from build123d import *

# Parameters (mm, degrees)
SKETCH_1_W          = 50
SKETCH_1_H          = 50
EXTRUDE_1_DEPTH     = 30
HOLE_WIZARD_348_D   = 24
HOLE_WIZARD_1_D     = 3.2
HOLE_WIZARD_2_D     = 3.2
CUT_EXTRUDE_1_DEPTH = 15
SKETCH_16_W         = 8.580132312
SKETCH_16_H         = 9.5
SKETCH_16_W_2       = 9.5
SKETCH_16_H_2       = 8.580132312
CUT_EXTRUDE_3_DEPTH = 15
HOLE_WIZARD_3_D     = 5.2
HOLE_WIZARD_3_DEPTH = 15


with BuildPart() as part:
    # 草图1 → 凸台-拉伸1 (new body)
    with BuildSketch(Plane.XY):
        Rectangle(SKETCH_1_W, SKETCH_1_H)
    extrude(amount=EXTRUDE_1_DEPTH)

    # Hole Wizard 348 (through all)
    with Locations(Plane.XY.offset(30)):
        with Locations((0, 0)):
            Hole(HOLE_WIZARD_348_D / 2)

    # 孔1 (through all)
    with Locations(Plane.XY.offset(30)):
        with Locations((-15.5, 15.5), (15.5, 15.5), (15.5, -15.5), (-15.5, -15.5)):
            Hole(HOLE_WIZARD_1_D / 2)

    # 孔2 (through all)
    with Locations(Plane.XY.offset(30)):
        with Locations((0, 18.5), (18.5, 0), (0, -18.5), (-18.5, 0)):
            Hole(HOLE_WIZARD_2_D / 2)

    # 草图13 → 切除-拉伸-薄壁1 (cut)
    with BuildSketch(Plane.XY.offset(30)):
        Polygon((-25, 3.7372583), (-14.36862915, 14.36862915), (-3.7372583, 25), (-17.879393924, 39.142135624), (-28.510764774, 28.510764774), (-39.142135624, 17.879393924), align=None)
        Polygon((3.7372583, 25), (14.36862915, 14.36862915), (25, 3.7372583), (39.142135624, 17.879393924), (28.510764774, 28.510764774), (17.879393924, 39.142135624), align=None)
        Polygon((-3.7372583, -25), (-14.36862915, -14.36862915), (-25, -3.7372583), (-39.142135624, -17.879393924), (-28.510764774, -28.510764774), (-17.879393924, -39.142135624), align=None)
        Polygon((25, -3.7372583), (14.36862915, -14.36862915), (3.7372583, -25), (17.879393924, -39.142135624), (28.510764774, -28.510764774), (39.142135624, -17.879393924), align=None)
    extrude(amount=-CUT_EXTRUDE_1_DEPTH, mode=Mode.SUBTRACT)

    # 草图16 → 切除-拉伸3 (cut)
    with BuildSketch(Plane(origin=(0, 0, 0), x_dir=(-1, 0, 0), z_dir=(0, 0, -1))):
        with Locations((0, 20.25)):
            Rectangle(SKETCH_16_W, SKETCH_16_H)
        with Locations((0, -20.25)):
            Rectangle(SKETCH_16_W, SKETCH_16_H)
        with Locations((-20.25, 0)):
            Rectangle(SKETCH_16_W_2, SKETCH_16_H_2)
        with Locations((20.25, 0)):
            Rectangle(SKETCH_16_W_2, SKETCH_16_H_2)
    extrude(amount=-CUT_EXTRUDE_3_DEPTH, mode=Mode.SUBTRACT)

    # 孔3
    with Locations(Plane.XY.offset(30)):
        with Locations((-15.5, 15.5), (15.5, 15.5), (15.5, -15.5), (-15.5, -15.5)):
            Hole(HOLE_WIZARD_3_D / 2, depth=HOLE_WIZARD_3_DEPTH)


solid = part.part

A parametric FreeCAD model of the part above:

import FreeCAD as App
import Part
import Sketcher


def add_polygon(sketch, points):
    """Adds a closed chain of lines whose ends are joined by coincident constraints."""
    first, n = sketch.GeometryCount, len(points)
    for a, b in zip(points, points[1:] + points[:1]):
        sketch.addGeometry(Part.LineSegment(App.Vector(*a, 0), App.Vector(*b, 0)), False)
    for i in range(n):
        sketch.addConstraint(Sketcher.Constraint("Coincident", first + i, 2, first + (i + 1) % n, 1))

doc = App.newDocument("Part")
body = doc.addObject("PartDesign::Body", "Body")

# Sketch on XY plane
sketch1 = body.newObject("Sketcher::SketchObject", "Sketch")
sketch1.AttachmentSupport = (doc.getObject("XY_Plane"), [""])
sketch1.MapMode = "FlatFace"
add_polygon(sketch1, [(-25, 25), (-25, -25), (25, -25), (25, 25)])  # lines 0-3
sketch1.addConstraint(Sketcher.Constraint("Vertical", 0))
sketch1.addConstraint(Sketcher.Constraint("Horizontal", 1))
sketch1.addConstraint(Sketcher.Constraint("Vertical", 2))
sketch1.addConstraint(Sketcher.Constraint("Horizontal", 3))
sketch1.addConstraint(Sketcher.Constraint("Symmetric", 0, 2, 2, 2, -1, 1))
sketch1.addConstraint(Sketcher.Constraint("Equal", 3, 0))
sketch1.addConstraint(Sketcher.Constraint("DistanceX", 1, 1, 1, 2, 50.0))
pad1 = body.newObject("PartDesign::Pad", "Pad")
pad1.Profile = sketch1
pad1.Length = 30

# Sketch on XY plane
sketch2 = body.newObject("Sketcher::SketchObject", "Sketch001")
sketch2.AttachmentSupport = (doc.getObject("XY_Plane"), [""])
sketch2.MapMode = "FlatFace"
sketch2.AttachmentOffset = App.Placement(App.Vector(0, 0, 30), App.Rotation())
sketch2.addGeometry(Part.Circle(App.Vector(0, 0, 0), App.Vector(0, 0, 1), 12), False)
sketch2.addConstraint(Sketcher.Constraint("Coincident", 0, 3, -1, 1))
sketch2.addConstraint(Sketcher.Constraint("Diameter", 0, 24.0))
doc.recompute()
hole = body.newObject("PartDesign::Hole", "Hole")
hole.Profile = sketch2
hole.ThreadType = "None"
hole.Diameter = 24
hole.DepthType = "ThroughAll"

# Sketch on XY plane
sketch3 = body.newObject("Sketcher::SketchObject", "Sketch002")
sketch3.AttachmentSupport = (doc.getObject("XY_Plane"), [""])
sketch3.MapMode = "FlatFace"
sketch3.AttachmentOffset = App.Placement(App.Vector(0, 0, 30), App.Rotation())
sketch3.addGeometry(Part.Circle(App.Vector(-15.5, 15.5, 0), App.Vector(0, 0, 1), 1.6), False)
sketch3.addGeometry(Part.Circle(App.Vector(15.5, 15.5, 0), App.Vector(0, 0, 1), 1.6), False)
sketch3.addGeometry(Part.Circle(App.Vector(15.5, -15.5, 0), App.Vector(0, 0, 1), 1.6), False)
sketch3.addGeometry(Part.Circle(App.Vector(-15.5, -15.5, 0), App.Vector(0, 0, 1), 1.6), False)
sketch3.addConstraint(Sketcher.Constraint("Equal", 0, 1))
sketch3.addConstraint(Sketcher.Constraint("Equal", 1, 2))
sketch3.addConstraint(Sketcher.Constraint("Equal", 2, 3))
sketch3.addConstraint(Sketcher.Constraint("Symmetric", 0, 3, 2, 3, -1, 1))
sketch3.addConstraint(Sketcher.Constraint("Symmetric", 1, 3, 3, 3, -1, 1))
sketch3.addConstraint(Sketcher.Constraint("Symmetric", 0, 3, 1, 3, -2))
sketch3.addConstraint(Sketcher.Constraint("Diameter", 0, 3.2))
sketch3.addConstraint(Sketcher.Constraint("DistanceX", 0, 3, 1, 3, 31.0))
sketch3.addConstraint(Sketcher.Constraint("DistanceY", 2, 3, 1, 3, 31.0))
doc.recompute()
hole2 = body.newObject("PartDesign::Hole", "Hole001")
hole2.Profile = sketch3
hole2.ThreadType = "None"
hole2.Diameter = 3.2
hole2.DepthType = "ThroughAll"

# Sketch on XY plane
sketch4 = body.newObject("Sketcher::SketchObject", "Sketch003")
sketch4.AttachmentSupport = (doc.getObject("XY_Plane"), [""])
sketch4.MapMode = "FlatFace"
sketch4.AttachmentOffset = App.Placement(App.Vector(0, 0, 30), App.Rotation())
sketch4.addGeometry(Part.Circle(App.Vector(0, 18.5, 0), App.Vector(0, 0, 1), 1.6), False)
sketch4.addGeometry(Part.Circle(App.Vector(18.5, 0, 0), App.Vector(0, 0, 1), 1.6), False)
sketch4.addGeometry(Part.Circle(App.Vector(0, -18.5, 0), App.Vector(0, 0, 1), 1.6), False)
sketch4.addGeometry(Part.Circle(App.Vector(-18.5, 0, 0), App.Vector(0, 0, 1), 1.6), False)
sketch4.addConstraint(Sketcher.Constraint("Equal", 0, 1))
sketch4.addConstraint(Sketcher.Constraint("Equal", 1, 2))
sketch4.addConstraint(Sketcher.Constraint("Equal", 2, 3))
sketch4.addConstraint(Sketcher.Constraint("Symmetric", 0, 3, 2, 3, -1, 1))
sketch4.addConstraint(Sketcher.Constraint("Symmetric", 1, 3, 3, 3, -1, 1))
sketch4.addConstraint(Sketcher.Constraint("PointOnObject", 0, 3, -2))
sketch4.addConstraint(Sketcher.Constraint("PointOnObject", 1, 3, -1))
sketch4.addConstraint(Sketcher.Constraint("Diameter", 0, 3.2))
sketch4.addConstraint(Sketcher.Constraint("DistanceY", 2, 3, 0, 3, 37.0))
sketch4.addConstraint(Sketcher.Constraint("DistanceX", 3, 3, 1, 3, 37.0))
doc.recompute()
hole3 = body.newObject("PartDesign::Hole", "Hole002")
hole3.Profile = sketch4
hole3.ThreadType = "None"
hole3.Diameter = 3.2
hole3.DepthType = "ThroughAll"

# Sketch on XY plane
sketch5 = body.newObject("Sketcher::SketchObject", "Sketch004")
sketch5.AttachmentSupport = (doc.getObject("XY_Plane"), [""])
sketch5.MapMode = "FlatFace"
sketch5.AttachmentOffset = App.Placement(App.Vector(0, 0, 30), App.Rotation())
add_polygon(sketch5, [(-25, 4), (-4, 25), (-18, 39), (-39, 18)])  # lines 0-3
add_polygon(sketch5, [(4, 25), (25, 4), (39, 18), (18, 39)])  # lines 4-7
add_polygon(sketch5, [(-4, -25), (-25, -4), (-39, -18), (-18, -39)])  # lines 8-11
add_polygon(sketch5, [(25, -4), (4, -25), (18, -39), (39, -18)])  # lines 12-15
sketch5.addConstraint(Sketcher.Constraint("Symmetric", 4, 2, 8, 2, -1, 1))
sketch5.addConstraint(Sketcher.Constraint("Symmetric", 5, 2, 9, 2, -1, 1))
sketch5.addConstraint(Sketcher.Constraint("Symmetric", 6, 2, 10, 2, -1, 1))
sketch5.addConstraint(Sketcher.Constraint("Symmetric", 7, 2, 11, 2, -1, 1))
sketch5.addConstraint(Sketcher.Constraint("Symmetric", 0, 2, 12, 2, -1, 1))
sketch5.addConstraint(Sketcher.Constraint("Symmetric", 1, 2, 13, 2, -1, 1))
sketch5.addConstraint(Sketcher.Constraint("Symmetric", 2, 2, 14, 2, -1, 1))
sketch5.addConstraint(Sketcher.Constraint("Symmetric", 3, 2, 15, 2, -1, 1))
sketch5.addConstraint(Sketcher.Constraint("Symmetric", 3, 2, 4, 2, -2))
sketch5.addConstraint(Sketcher.Constraint("Symmetric", 2, 2, 5, 2, -2))
sketch5.addConstraint(Sketcher.Constraint("Symmetric", 1, 2, 6, 2, -2))
sketch5.addConstraint(Sketcher.Constraint("Symmetric", 0, 2, 7, 2, -2))
sketch5.addConstraint(Sketcher.Constraint("Perpendicular", 0, 1))
sketch5.addConstraint(Sketcher.Constraint("Perpendicular", 1, 2))
sketch5.addConstraint(Sketcher.Constraint("Perpendicular", 2, 3))
sketch5.addConstraint(Sketcher.Constraint("Parallel", 3, 4))
sketch5.addConstraint(Sketcher.Constraint("Distance", 1, 20.0))
sketch5.addConstraint(Sketcher.Constraint("DistanceY", -1, 1, 0, 2, 25.0))
sketch5.addConstraint(Sketcher.Constraint("DistanceX", 3, 2, -1, 1, 25.0))
sketch5.addConstraint(Sketcher.Constraint("DistanceX", 0, 2, -1, 1, 3.737258))
pocket1 = body.newObject("PartDesign::Pocket", "Pocket")
pocket1.Profile = sketch5
pocket1.Length = 15

# Sketch on XY plane
sketch6 = body.newObject("Sketcher::SketchObject", "Sketch005")
sketch6.AttachmentSupport = (doc.getObject("XY_Plane"), [""])
sketch6.MapMode = "FlatFace"
add_polygon(sketch6, [(4, 25), (4, 16), (-4, 16), (-4, 25)])  # lines 0-3
add_polygon(sketch6, [(4, -16), (4, -25), (-4, -25), (-4, -16)])  # lines 4-7
add_polygon(sketch6, [(25, 4), (25, -4), (16, -4), (16, 4)])  # lines 8-11
add_polygon(sketch6, [(-16, 4), (-16, -4), (-25, -4), (-25, 4)])  # lines 12-15
sketch6.addConstraint(Sketcher.Constraint("Vertical", 0))
sketch6.addConstraint(Sketcher.Constraint("Horizontal", 1))
sketch6.addConstraint(Sketcher.Constraint("Vertical", 2))
sketch6.addConstraint(Sketcher.Constraint("Horizontal", 3))
sketch6.addConstraint(Sketcher.Constraint("Vertical", 4))
sketch6.addConstraint(Sketcher.Constraint("Horizontal", 5))
sketch6.addConstraint(Sketcher.Constraint("Vertical", 6))
sketch6.addConstraint(Sketcher.Constraint("Horizontal", 7))
sketch6.addConstraint(Sketcher.Constraint("Vertical", 8))
sketch6.addConstraint(Sketcher.Constraint("Horizontal", 9))
sketch6.addConstraint(Sketcher.Constraint("Vertical", 10))
sketch6.addConstraint(Sketcher.Constraint("Horizontal", 11))
sketch6.addConstraint(Sketcher.Constraint("Vertical", 12))
sketch6.addConstraint(Sketcher.Constraint("Horizontal", 13))
sketch6.addConstraint(Sketcher.Constraint("Vertical", 14))
sketch6.addConstraint(Sketcher.Constraint("Horizontal", 15))
sketch6.addConstraint(Sketcher.Constraint("Symmetric", 2, 2, 4, 2, -1, 1))
sketch6.addConstraint(Sketcher.Constraint("Symmetric", 0, 2, 6, 2, -1, 1))
sketch6.addConstraint(Sketcher.Constraint("Symmetric", 10, 2, 12, 2, -1, 1))
sketch6.addConstraint(Sketcher.Constraint("Symmetric", 8, 2, 14, 2, -1, 1))
sketch6.addConstraint(Sketcher.Constraint("Horizontal", 9, 2, 12, 2))
sketch6.addConstraint(Sketcher.Constraint("Vertical", 3, 2, 4, 2))
sketch6.addConstraint(Sketcher.Constraint("Equal", 15, 0))
sketch6.addConstraint(Sketcher.Constraint("Equal", 7, 8))
sketch6.addConstraint(Sketcher.Constraint("DistanceX", 9, 2, 9, 1, 9.5))
sketch6.addConstraint(Sketcher.Constraint("DistanceY", -1, 1, 2, 2, 25.0))
sketch6.addConstraint(Sketcher.Constraint("DistanceX", -1, 1, 8, 2, 25.0))
sketch6.addConstraint(Sketcher.Constraint("DistanceX", 1, 2, 1, 1, 8.580132))
pocket2 = body.newObject("PartDesign::Pocket", "Pocket001")
pocket2.Profile = sketch6
pocket2.Length = 15
pocket2.Reversed = True

# Sketch on XY plane
sketch7 = body.newObject("Sketcher::SketchObject", "Sketch006")
sketch7.AttachmentSupport = (doc.getObject("XY_Plane"), [""])
sketch7.MapMode = "FlatFace"
sketch7.AttachmentOffset = App.Placement(App.Vector(0, 0, 30), App.Rotation())
sketch7.addGeometry(Part.Circle(App.Vector(-15.5, 15.5, 0), App.Vector(0, 0, 1), 2.6), False)
sketch7.addGeometry(Part.Circle(App.Vector(15.5, 15.5, 0), App.Vector(0, 0, 1), 2.6), False)
sketch7.addGeometry(Part.Circle(App.Vector(15.5, -15.5, 0), App.Vector(0, 0, 1), 2.6), False)
sketch7.addGeometry(Part.Circle(App.Vector(-15.5, -15.5, 0), App.Vector(0, 0, 1), 2.6), False)
sketch7.addConstraint(Sketcher.Constraint("Equal", 0, 1))
sketch7.addConstraint(Sketcher.Constraint("Equal", 1, 2))
sketch7.addConstraint(Sketcher.Constraint("Equal", 2, 3))
sketch7.addConstraint(Sketcher.Constraint("Symmetric", 0, 3, 2, 3, -1, 1))
sketch7.addConstraint(Sketcher.Constraint("Symmetric", 1, 3, 3, 3, -1, 1))
sketch7.addConstraint(Sketcher.Constraint("Symmetric", 0, 3, 1, 3, -2))
sketch7.addConstraint(Sketcher.Constraint("Diameter", 0, 5.2))
sketch7.addConstraint(Sketcher.Constraint("DistanceX", 0, 3, 1, 3, 31.0))
sketch7.addConstraint(Sketcher.Constraint("DistanceY", 2, 3, 1, 3, 31.0))
doc.recompute()
hole4 = body.newObject("PartDesign::Hole", "Hole003")
hole4.Profile = sketch7
hole4.ThreadType = "None"
hole4.Diameter = 5.2
hole4.DepthType = "Dimension"
hole4.Depth = 15
hole4.DrillPoint = "Flat"

doc.recompute()
